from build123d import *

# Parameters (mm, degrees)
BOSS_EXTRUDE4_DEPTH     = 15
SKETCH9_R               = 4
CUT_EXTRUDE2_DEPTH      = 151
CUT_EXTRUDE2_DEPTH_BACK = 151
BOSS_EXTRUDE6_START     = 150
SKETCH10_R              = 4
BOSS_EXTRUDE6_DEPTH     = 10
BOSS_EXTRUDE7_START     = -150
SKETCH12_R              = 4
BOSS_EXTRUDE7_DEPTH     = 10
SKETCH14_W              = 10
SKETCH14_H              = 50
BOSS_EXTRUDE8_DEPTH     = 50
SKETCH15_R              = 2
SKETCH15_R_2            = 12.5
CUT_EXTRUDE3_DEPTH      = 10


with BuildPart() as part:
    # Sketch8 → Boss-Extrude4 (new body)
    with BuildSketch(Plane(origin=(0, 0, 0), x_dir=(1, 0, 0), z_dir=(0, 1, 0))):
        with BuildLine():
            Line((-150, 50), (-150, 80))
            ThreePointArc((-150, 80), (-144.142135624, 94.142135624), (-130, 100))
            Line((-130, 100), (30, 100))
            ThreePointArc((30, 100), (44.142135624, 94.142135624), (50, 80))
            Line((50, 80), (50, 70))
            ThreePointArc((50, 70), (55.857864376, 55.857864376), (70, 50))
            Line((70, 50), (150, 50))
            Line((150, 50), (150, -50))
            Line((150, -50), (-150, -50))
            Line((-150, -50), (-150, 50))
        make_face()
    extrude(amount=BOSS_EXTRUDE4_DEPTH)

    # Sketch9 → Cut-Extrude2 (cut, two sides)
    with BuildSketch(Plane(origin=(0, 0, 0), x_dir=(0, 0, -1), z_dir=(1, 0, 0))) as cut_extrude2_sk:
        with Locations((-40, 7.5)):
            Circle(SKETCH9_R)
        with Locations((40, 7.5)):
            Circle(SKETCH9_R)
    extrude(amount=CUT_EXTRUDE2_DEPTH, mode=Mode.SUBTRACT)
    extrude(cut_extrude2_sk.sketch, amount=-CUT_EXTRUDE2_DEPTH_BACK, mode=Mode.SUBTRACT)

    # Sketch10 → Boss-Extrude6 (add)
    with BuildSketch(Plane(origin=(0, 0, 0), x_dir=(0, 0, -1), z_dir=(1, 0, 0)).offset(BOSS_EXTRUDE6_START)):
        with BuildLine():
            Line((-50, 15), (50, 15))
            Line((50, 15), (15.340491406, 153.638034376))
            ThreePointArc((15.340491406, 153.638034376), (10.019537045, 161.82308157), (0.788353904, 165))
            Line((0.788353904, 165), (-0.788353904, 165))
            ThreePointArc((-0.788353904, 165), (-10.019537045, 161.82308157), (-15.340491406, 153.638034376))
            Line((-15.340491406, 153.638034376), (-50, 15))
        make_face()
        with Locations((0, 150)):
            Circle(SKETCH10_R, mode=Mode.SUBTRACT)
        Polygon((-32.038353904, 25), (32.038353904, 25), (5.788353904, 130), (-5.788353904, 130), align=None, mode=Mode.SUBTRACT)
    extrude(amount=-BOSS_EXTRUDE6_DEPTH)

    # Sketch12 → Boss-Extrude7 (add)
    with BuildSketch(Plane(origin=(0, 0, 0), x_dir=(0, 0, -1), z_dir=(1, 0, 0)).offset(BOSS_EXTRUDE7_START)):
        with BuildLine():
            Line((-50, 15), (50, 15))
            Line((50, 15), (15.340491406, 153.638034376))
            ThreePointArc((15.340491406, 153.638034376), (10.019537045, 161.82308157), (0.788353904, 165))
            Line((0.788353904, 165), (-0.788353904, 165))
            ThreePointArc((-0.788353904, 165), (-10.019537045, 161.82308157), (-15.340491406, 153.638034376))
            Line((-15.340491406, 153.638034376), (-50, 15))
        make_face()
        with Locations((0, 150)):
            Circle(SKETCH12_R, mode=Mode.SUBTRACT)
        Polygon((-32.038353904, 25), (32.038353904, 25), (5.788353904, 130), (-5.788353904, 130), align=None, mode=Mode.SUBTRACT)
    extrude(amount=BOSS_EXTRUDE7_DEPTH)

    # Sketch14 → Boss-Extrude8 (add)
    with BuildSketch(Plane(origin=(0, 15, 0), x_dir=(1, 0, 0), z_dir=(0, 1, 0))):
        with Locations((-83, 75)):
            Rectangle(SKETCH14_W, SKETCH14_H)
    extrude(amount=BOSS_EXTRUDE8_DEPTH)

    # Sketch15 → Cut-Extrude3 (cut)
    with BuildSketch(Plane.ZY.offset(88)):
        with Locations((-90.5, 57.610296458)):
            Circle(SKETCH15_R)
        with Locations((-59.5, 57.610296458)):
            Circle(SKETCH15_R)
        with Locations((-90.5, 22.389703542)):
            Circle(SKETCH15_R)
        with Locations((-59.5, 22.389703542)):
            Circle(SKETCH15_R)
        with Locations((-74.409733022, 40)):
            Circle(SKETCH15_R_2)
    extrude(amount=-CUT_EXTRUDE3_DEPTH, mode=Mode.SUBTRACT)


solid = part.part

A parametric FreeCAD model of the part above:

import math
import FreeCAD as App
import Part
import Sketcher

V = App.Vector
Q = App.Units.Quantity


def add_polygon(sketch, points):
    """Adds a closed chain of lines whose ends are joined by coincident constraints."""
    first, n = sketch.GeometryCount, len(points)
    for a, b in zip(points, points[1:] + points[:1]):
        sketch.addGeometry(Part.LineSegment(App.Vector(*a, 0), App.Vector(*b, 0)), False)
    for i in range(n):
        sketch.addConstraint(Sketcher.Constraint("Coincident", first + i, 2, first + (i + 1) % n, 1))

doc = App.newDocument("Part")
body = doc.addObject("PartDesign::Body", "Body")

# Sketch on XZ plane
sketch1 = body.newObject("Sketcher::SketchObject", "Sketch")
sketch1.AttachmentSupport = (doc.getObject("XZ_Plane"), [""])
sketch1.MapMode = "FlatFace"
sketch1.addGeometry(Part.ArcOfCircle(Part.Circle(V(-130, -80, 0), V(0, 0, 1), 20), math.radians(180), math.radians(270)), False)
sketch1.addGeometry(Part.LineSegment(V(-150, -80, 0), V(-150, 50, 0)), False)
sketch1.addGeometry(Part.LineSegment(V(-150, 50, 0), V(150, 50, 0)), False)
sketch1.addGeometry(Part.LineSegment(V(150, 50, 0), V(150, -50, 0)), False)
sketch1.addGeometry(Part.LineSegment(V(150, -50, 0), V(70, -50, 0)), False)
sketch1.addGeometry(Part.ArcOfCircle(Part.Circle(V(70, -70, 0), V(0, 0, 1), 20), math.radians(90), math.radians(180)), False)
sketch1.addGeometry(Part.LineSegment(V(50, -70, 0), V(50, -80, 0)), False)
sketch1.addGeometry(Part.ArcOfCircle(Part.Circle(V(30, -80, 0), V(0, 0, 1), 20), math.radians(-90), math.radians(0)), False)
sketch1.addGeometry(Part.LineSegment(V(30, -100, 0), V(-130, -100, 0)), False)
sketch1.addConstraint(Sketcher.Constraint("Tangent", 0, 1, 1, 1))
sketch1.addConstraint(Sketcher.Constraint("Coincident", 1, 2, 2, 1))
sketch1.addConstraint(Sketcher.Constraint("Coincident", 2, 2, 3, 1))
sketch1.addConstraint(Sketcher.Constraint("Coincident", 3, 2, 4, 1))
sketch1.addConstraint(Sketcher.Constraint("Tangent", 4, 2, 5, 1))
sketch1.addConstraint(Sketcher.Constraint("Tangent", 5, 2, 6, 1))
sketch1.addConstraint(Sketcher.Constraint("Tangent", 6, 2, 7, 2))
sketch1.addConstraint(Sketcher.Constraint("Tangent", 7, 1, 8, 1))
sketch1.addConstraint(Sketcher.Constraint("Tangent", 8, 2, 0, 2))
sketch1.addConstraint(Sketcher.Constraint("Vertical", 1))
sketch1.addConstraint(Sketcher.Constraint("Horizontal", 2))
sketch1.addConstraint(Sketcher.Constraint("Vertical", 3))
sketch1.addConstraint(Sketcher.Constraint("Horizontal", 4))
sketch1.addConstraint(Sketcher.Constraint("Vertical", 6))
sketch1.addConstraint(Sketcher.Constraint("Horizontal", 8))
sketch1.addConstraint(Sketcher.Constraint("Equal", 0, 5))
sketch1.addConstraint(Sketcher.Constraint("Equal", 5, 7))
sketch1.addConstraint(Sketcher.Constraint("Symmetric", 1, 2, 3, 2, -1, 1))
sketch1.addConstraint(Sketcher.Constraint("Radius", 0, Q("20 mm")))
sketch1.addConstraint(Sketcher.Constraint("DistanceX", 2, 1, 2, 2, Q("300 mm")))
sketch1.addConstraint(Sketcher.Constraint("DistanceX", 4, 2, 4, 1, Q("80 mm")))
sketch1.addConstraint(Sketcher.Constraint("DistanceY", 1, 1, 1, 2, Q("130 mm")))
sketch1.addConstraint(Sketcher.Constraint("DistanceY", 3, 2, 3, 1, Q("100 mm")))
pad1 = body.newObject("PartDesign::Pad", "Pad")
pad1.Profile = sketch1
pad1.Length = 15
pad1.Reversed = True

# Sketch on YZ plane
sketch2 = body.newObject("Sketcher::SketchObject", "Sketch001")
sketch2.AttachmentSupport = (doc.getObject("YZ_Plane"), [""])
sketch2.MapMode = "FlatFace"
sketch2.addGeometry(Part.Circle(V(7.5, 40, 0), V(0, 0, 1), 4), False)
sketch2.addGeometry(Part.Circle(V(7.5, -40, 0), V(0, 0, 1), 4), False)
sketch2.addConstraint(Sketcher.Constraint("Equal", 0, 1))
sketch2.addConstraint(Sketcher.Constraint("Symmetric", 0, 3, 1, 3, -1))
sketch2.addConstraint(Sketcher.Constraint("Diameter", 0, Q("8 mm")))
sketch2.addConstraint(Sketcher.Constraint("DistanceY", -1, 1, 0, 3, Q("40 mm")))
sketch2.addConstraint(Sketcher.Constraint("DistanceX", -1, 1, 0, 3, Q("7.5 mm")))
pocket1 = body.newObject("PartDesign::Pocket", "Pocket")
pocket1.Profile = sketch2
pocket1.Type = "ThroughAll"
pocket1.Midplane = True

# Sketch on YZ plane
sketch3 = body.newObject("Sketcher::SketchObject", "Sketch002")
sketch3.AttachmentSupport = (doc.getObject("YZ_Plane"), [""])
sketch3.MapMode = "FlatFace"
sketch3.AttachmentOffset = App.Placement(V(0, 0, 150), App.Rotation())
sketch3.addGeometry(Part.LineSegment(V(15, 50, 0), V(15, -50, 0)), False)  # 0
sketch3.addGeometry(Part.LineSegment(V(15, -50, 0), V(153.6, -15.3, 0)), False)  # 1
sketch3.addGeometry(Part.ArcOfCircle(Part.Circle(V(150, -0.8, 0), V(0, 0, 1), 15), math.radians(-76), math.radians(0)), False)  # 2
sketch3.addGeometry(Part.LineSegment(V(165, -0.8, 0), V(165, 0.8, 0)), False)  # 3
sketch3.addGeometry(Part.ArcOfCircle(Part.Circle(V(150, 0.8, 0), V(0, 0, 1), 15), math.radians(0), math.radians(76)), False)  # 4
sketch3.addGeometry(Part.LineSegment(V(153.6, 15.3, 0), V(15, 50, 0)), False)  # 5
add_polygon(sketch3, [(25, -32), (25, 32), (130, 5.8), (130, -5.8)])  # lines 6-9
sketch3.addGeometry(Part.Circle(V(150, 0, 0), V(0, 0, 1), 4), False)  # 10
sketch3.addConstraint(Sketcher.Constraint("Coincident", 0, 2, 1, 1))
sketch3.addConstraint(Sketcher.Constraint("Tangent", 1, 2, 2, 1))
sketch3.addConstraint(Sketcher.Constraint("Tangent", 2, 2, 3, 1))
sketch3.addConstraint(Sketcher.Constraint("Tangent", 3, 2, 4, 1))
sketch3.addConstraint(Sketcher.Constraint("Tangent", 4, 2, 5, 1))
sketch3.addConstraint(Sketcher.Constraint("Coincident", 5, 2, 0, 1))
sketch3.addConstraint(Sketcher.Constraint("Vertical", 0))
sketch3.addConstraint(Sketcher.Constraint("Vertical", 3))
sketch3.addConstraint(Sketcher.Constraint("Vertical", 6))
sketch3.addConstraint(Sketcher.Constraint("Vertical", 8))
sketch3.addConstraint(Sketcher.Constraint("Equal", 2, 4))
sketch3.addConstraint(Sketcher.Constraint("Symmetric", 1, 2, 4, 2, -1))
sketch3.addConstraint(Sketcher.Constraint("PointOnObject", 10, 3, -1))
sketch3.addConstraint(Sketcher.Constraint("Parallel", 5, 7))
sketch3.addConstraint(Sketcher.Constraint("Parallel", 1, 9))
sketch3.addConstraint(Sketcher.Constraint("Vertical", 4, 3, 10, 3))
sketch3.addConstraint(Sketcher.Constraint("Diameter", 10, Q("8 mm")))
sketch3.addConstraint(Sketcher.Constraint("Radius", 2, Q("15 mm")))
sketch3.addConstraint(Sketcher.Constraint("DistanceY", 0, 2, 0, 1, Q("100 mm")))
sketch3.addConstraint(Sketcher.Constraint("DistanceX", -1, 1, 2, 3, Q("150 mm")))
sketch3.addConstraint(Sketcher.Constraint("DistanceX", -1, 1, 0, 2, Q("15 mm")))
sketch3.addConstraint(Sketcher.Constraint("DistanceX", -1, 1, 6, 2, Q("25 mm")))
sketch3.addConstraint(Sketcher.Constraint("DistanceX", -1, 1, 7, 2, Q("130 mm")))
sketch3.addConstraint(Sketcher.Constraint("DistanceY", 4, 3, 7, 2, Q("5 mm")))
sketch3.addConstraint(Sketcher.Constraint("DistanceY", 8, 2, 2, 3, Q("5 mm")))
sketch3.addConstraint(Sketcher.Constraint("DistanceY", 4, 3, 6, 2, Q("31.25 mm")))
pad2 = body.newObject("PartDesign::Pad", "Pad001")
pad2.Profile = sketch3
pad2.Length = 10
pad2.Reversed = True

# Sketch on YZ plane
sketch4 = body.newObject("Sketcher::SketchObject", "Sketch003")
sketch4.AttachmentSupport = (doc.getObject("YZ_Plane"), [""])
sketch4.MapMode = "FlatFace"
sketch4.AttachmentOffset = App.Placement(V(0, 0, -150), App.Rotation())
sketch4.addGeometry(Part.LineSegment(V(15, 50, 0), V(15, -50, 0)), False)  # 0
sketch4.addGeometry(Part.LineSegment(V(15, -50, 0), V(153.6, -15.3, 0)), False)  # 1
sketch4.addGeometry(Part.ArcOfCircle(Part.Circle(V(150, -0.8, 0), V(0, 0, 1), 15), math.radians(-76), math.radians(0)), False)  # 2
sketch4.addGeometry(Part.LineSegment(V(165, -0.8, 0), V(165, 0.8, 0)), False)  # 3
sketch4.addGeometry(Part.ArcOfCircle(Part.Circle(V(150, 0.8, 0), V(0, 0, 1), 15), math.radians(0), math.radians(76)), False)  # 4
sketch4.addGeometry(Part.LineSegment(V(153.6, 15.3, 0), V(15, 50, 0)), False)  # 5
add_polygon(sketch4, [(25, -32), (25, 32), (130, 5.8), (130, -5.8)])  # lines 6-9
sketch4.addGeometry(Part.Circle(V(150, 0, 0), V(0, 0, 1), 4), False)  # 10
sketch4.addConstraint(Sketcher.Constraint("Coincident", 0, 2, 1, 1))
sketch4.addConstraint(Sketcher.Constraint("Tangent", 1, 2, 2, 1))
sketch4.addConstraint(Sketcher.Constraint("Tangent", 2, 2, 3, 1))
sketch4.addConstraint(Sketcher.Constraint("Tangent", 3, 2, 4, 1))
sketch4.addConstraint(Sketcher.Constraint("Tangent", 4, 2, 5, 1))
sketch4.addConstraint(Sketcher.Constraint("Coincident", 5, 2, 0, 1))
sketch4.addConstraint(Sketcher.Constraint("Vertical", 0))
sketch4.addConstraint(Sketcher.Constraint("Vertical", 3))
sketch4.addConstraint(Sketcher.Constraint("Vertical", 6))
sketch4.addConstraint(Sketcher.Constraint("Vertical", 8))
sketch4.addConstraint(Sketcher.Constraint("Equal", 2, 4))
sketch4.addConstraint(Sketcher.Constraint("Symmetric", 1, 2, 4, 2, -1))
sketch4.addConstraint(Sketcher.Constraint("PointOnObject", 10, 3, -1))
sketch4.addConstraint(Sketcher.Constraint("Parallel", 5, 7))
sketch4.addConstraint(Sketcher.Constraint("Parallel", 1, 9))
sketch4.addConstraint(Sketcher.Constraint("Vertical", 4, 3, 10, 3))
sketch4.addConstraint(Sketcher.Constraint("Diameter", 10, Q("8 mm")))
sketch4.addConstraint(Sketcher.Constraint("Radius", 2, Q("15 mm")))
sketch4.addConstraint(Sketcher.Constraint("DistanceY", 0, 2, 0, 1, Q("100 mm")))
sketch4.addConstraint(Sketcher.Constraint("DistanceX", -1, 1, 2, 3, Q("150 mm")))
sketch4.addConstraint(Sketcher.Constraint("DistanceX", -1, 1, 0, 2, Q("15 mm")))
sketch4.addConstraint(Sketcher.Constraint("DistanceX", -1, 1, 6, 2, Q("25 mm")))
sketch4.addConstraint(Sketcher.Constraint("DistanceX", -1, 1, 7, 2, Q("130 mm")))
sketch4.addConstraint(Sketcher.Constraint("DistanceY", 4, 3, 7, 2, Q("5 mm")))
sketch4.addConstraint(Sketcher.Constraint("DistanceY", 8, 2, 2, 3, Q("5 mm")))
sketch4.addConstraint(Sketcher.Constraint("DistanceY", 4, 3, 6, 2, Q("31.25 mm")))
pad3 = body.newObject("PartDesign::Pad", "Pad002")
pad3.Profile = sketch4
pad3.Length = 10

# Sketch on XZ plane
sketch5 = body.newObject("Sketcher::SketchObject", "Sketch004")
sketch5.AttachmentSupport = (doc.getObject("XZ_Plane"), [""])
sketch5.MapMode = "FlatFace"
sketch5.AttachmentOffset = App.Placement(V(0, 0, -15), App.Rotation())
add_polygon(sketch5, [(-88, -100), (-88, -50), (-78, -50), (-78, -100)])  # lines 0-3
sketch5.addConstraint(Sketcher.Constraint("Vertical", 0))
sketch5.addConstraint(Sketcher.Constraint("Horizontal", 1))
sketch5.addConstraint(Sketcher.Constraint("Vertical", 2))
sketch5.addConstraint(Sketcher.Constraint("Horizontal", 3))
sketch5.addConstraint(Sketcher.Constraint("DistanceX", 1, 1, 1, 2, Q("10 mm")))
sketch5.addConstraint(Sketcher.Constraint("DistanceY", 0, 1, 0, 2, Q("50 mm")))
sketch5.addConstraint(Sketcher.Constraint("DistanceX", 0, 2, -1, 1, Q("88 mm")))
sketch5.addConstraint(Sketcher.Constraint("DistanceY", 0, 2, -1, 1, Q("50 mm")))
pad4 = body.newObject("PartDesign::Pad", "Pad003")
pad4.Profile = sketch5
pad4.Length = 50
pad4.Reversed = True

# Sketch on YZ plane
sketch6 = body.newObject("Sketcher::SketchObject", "Sketch005")
sketch6.AttachmentSupport = (doc.getObject("YZ_Plane"), [""])
sketch6.MapMode = "FlatFace"
sketch6.AttachmentOffset = App.Placement(V(0, 0, -88), App.Rotation())
sketch6.addGeometry(Part.Circle(V(57.6, -90.5, 0), V(0, 0, 1), 2), False)
sketch6.addGeometry(Part.Circle(V(57.6, -59.5, 0), V(0, 0, 1), 2), False)
sketch6.addGeometry(Part.Circle(V(22.4, -90.5, 0), V(0, 0, 1), 2), False)
sketch6.addGeometry(Part.Circle(V(22.4, -59.5, 0), V(0, 0, 1), 2), False)
sketch6.addGeometry(Part.Circle(V(40, -74.4, 0), V(0, 0, 1), 12.5), False)
sketch6.addConstraint(Sketcher.Constraint("Equal", 0, 1))
sketch6.addConstraint(Sketcher.Constraint("Equal", 1, 2))
sketch6.addConstraint(Sketcher.Constraint("Equal", 2, 3))
sketch6.addConstraint(Sketcher.Constraint("Horizontal", 0, 3, 2, 3))
sketch6.addConstraint(Sketcher.Constraint("Horizontal", 1, 3, 3, 3))
sketch6.addConstraint(Sketcher.Constraint("Vertical", 0, 3, 1, 3))
sketch6.addConstraint(Sketcher.Constraint("Vertical", 2, 3, 3, 3))
sketch6.addConstraint(Sketcher.Constraint("Diameter", 0, Q("4 mm")))
sketch6.addConstraint(Sketcher.Constraint("Diameter", 4, Q("25 mm")))
sketch6.addConstraint(Sketcher.Constraint("DistanceX", -1, 1, 4, 3, Q("40 mm")))
sketch6.addConstraint(Sketcher.Constraint("DistanceY", 0, 3, 1, 3, Q("31 mm")))
sketch6.addConstraint(Sketcher.Constraint("DistanceY", 0, 3, -1, 1, Q("90.5 mm")))
sketch6.addConstraint(Sketcher.Constraint("DistanceX", -1, 1, 0, 3, Q("57.610296 mm")))
sketch6.addConstraint(Sketcher.Constraint("DistanceX", -1, 1, 2, 3, Q("22.389704 mm")))
sketch6.addConstraint(Sketcher.Constraint("DistanceY", 4, 3, -1, 1, Q("74.409733 mm")))
pocket2 = body.newObject("PartDesign::Pocket", "Pocket001")
pocket2.Profile = sketch6
pocket2.Length = 10
pocket2.Reversed = True

doc.recompute()
